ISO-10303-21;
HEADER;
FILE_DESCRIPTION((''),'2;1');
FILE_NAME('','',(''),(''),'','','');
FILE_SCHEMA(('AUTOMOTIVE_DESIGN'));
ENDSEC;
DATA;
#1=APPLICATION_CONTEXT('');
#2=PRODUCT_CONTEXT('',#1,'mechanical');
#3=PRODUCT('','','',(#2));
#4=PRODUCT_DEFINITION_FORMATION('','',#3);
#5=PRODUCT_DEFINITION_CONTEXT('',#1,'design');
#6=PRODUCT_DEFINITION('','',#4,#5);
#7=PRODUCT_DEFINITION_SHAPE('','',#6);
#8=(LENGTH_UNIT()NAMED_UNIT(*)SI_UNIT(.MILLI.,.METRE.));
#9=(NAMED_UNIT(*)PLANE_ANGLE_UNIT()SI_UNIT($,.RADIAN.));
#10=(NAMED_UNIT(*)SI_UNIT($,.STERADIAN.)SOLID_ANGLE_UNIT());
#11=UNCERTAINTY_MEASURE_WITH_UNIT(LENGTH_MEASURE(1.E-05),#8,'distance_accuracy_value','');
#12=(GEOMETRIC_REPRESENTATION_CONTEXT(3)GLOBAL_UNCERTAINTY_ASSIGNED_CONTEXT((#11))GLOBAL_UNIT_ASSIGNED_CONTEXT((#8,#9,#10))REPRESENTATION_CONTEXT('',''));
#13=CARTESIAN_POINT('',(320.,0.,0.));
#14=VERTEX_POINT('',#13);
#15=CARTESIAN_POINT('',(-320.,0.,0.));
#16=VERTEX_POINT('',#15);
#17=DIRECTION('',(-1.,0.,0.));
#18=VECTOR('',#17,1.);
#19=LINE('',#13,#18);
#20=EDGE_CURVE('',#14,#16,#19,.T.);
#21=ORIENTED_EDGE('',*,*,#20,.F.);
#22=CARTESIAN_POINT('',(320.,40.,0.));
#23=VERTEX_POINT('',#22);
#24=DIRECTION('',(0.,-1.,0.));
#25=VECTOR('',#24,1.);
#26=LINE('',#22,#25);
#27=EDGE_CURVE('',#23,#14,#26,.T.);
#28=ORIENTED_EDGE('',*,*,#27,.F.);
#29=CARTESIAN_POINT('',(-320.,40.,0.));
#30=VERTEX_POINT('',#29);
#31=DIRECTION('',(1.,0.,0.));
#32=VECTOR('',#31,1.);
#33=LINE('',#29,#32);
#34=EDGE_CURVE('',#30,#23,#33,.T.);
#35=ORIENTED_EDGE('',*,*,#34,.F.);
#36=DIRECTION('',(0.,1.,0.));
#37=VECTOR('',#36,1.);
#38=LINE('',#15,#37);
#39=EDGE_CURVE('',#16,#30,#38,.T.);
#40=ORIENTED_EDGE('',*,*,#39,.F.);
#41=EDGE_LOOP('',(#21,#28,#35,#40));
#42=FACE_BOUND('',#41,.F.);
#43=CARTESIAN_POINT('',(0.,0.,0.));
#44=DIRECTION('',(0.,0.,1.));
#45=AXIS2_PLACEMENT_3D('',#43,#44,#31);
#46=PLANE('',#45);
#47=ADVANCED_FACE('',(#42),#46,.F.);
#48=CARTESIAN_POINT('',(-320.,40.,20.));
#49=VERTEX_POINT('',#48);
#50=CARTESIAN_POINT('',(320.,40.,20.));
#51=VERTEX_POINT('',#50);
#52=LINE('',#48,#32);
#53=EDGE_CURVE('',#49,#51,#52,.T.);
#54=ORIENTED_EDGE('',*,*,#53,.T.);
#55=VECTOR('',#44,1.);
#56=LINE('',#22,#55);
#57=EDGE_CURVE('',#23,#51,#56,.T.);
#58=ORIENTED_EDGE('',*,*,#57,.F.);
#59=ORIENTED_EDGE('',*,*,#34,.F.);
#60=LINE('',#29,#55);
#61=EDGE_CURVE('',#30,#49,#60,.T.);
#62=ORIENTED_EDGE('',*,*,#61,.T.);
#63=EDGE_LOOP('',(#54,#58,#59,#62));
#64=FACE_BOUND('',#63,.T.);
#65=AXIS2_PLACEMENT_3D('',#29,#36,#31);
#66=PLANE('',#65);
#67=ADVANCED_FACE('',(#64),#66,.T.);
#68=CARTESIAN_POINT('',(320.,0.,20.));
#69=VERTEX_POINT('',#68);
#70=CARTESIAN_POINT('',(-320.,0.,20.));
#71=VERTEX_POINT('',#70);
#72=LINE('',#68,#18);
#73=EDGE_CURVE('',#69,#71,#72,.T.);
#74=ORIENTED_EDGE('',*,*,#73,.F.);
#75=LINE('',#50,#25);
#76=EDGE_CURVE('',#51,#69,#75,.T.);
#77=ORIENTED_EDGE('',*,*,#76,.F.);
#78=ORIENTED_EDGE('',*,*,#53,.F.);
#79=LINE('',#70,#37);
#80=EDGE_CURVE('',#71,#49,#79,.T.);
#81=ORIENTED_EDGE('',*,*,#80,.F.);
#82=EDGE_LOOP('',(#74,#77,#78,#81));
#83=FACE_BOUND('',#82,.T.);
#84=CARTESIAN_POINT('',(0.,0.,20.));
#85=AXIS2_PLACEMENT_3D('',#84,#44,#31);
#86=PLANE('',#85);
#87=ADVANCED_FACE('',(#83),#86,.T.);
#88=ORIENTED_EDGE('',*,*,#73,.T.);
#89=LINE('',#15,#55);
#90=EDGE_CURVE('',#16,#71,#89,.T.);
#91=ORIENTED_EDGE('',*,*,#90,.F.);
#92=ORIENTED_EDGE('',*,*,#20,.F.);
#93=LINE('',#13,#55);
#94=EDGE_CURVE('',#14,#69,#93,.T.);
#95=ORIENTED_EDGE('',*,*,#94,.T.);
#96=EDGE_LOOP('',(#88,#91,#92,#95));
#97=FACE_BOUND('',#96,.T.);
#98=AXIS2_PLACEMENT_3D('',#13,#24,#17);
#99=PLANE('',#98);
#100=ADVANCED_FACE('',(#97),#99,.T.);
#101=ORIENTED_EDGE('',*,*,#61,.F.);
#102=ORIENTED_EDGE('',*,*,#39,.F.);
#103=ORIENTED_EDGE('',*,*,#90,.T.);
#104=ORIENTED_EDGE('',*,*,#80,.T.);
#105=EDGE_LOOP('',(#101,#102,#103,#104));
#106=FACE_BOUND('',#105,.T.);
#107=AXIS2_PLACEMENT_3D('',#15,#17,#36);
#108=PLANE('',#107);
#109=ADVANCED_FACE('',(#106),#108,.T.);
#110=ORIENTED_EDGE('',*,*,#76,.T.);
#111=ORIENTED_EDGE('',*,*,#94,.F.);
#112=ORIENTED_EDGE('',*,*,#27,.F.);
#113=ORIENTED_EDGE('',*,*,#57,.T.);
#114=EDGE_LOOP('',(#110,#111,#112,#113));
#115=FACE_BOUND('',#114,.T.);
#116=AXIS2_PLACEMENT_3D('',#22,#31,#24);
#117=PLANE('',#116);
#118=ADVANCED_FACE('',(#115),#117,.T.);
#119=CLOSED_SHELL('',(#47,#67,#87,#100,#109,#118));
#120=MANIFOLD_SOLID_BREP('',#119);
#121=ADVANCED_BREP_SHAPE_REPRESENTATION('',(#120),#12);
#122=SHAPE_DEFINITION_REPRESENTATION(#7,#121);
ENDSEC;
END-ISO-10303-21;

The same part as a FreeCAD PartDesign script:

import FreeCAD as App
import Part
import Sketcher

doc = App.newDocument("Part")
params = doc.addObject("Spreadsheet::Sheet", "Params")
for row, (alias, value) in enumerate([
    ("sketch1_width", "640 mm"),
    ("sketch1_height", "40 mm"),
    ("pad1_length", "20 mm"),
], start=1):
    params.set(f"A{row}", alias)
    params.set(f"B{row}", "=" + value)
    params.setAlias(f"B{row}", alias)

body = doc.addObject("PartDesign::Body", "Body")

# Sketch on XY plane
sketch1 = body.newObject("Sketcher::SketchObject", "Sketch")
sketch1.AttachmentSupport = (doc.getObject("XY_Plane"), [""])
sketch1.MapMode = "FlatFace"
sketch1.addGeometry([
    Part.LineSegment(App.Vector(320, 40, 0), App.Vector(-320, 40, 0)),
    Part.LineSegment(App.Vector(-320, 40, 0), App.Vector(-320, 0, 0)),
    Part.LineSegment(App.Vector(-320, 0, 0), App.Vector(320, 0, 0)),
    Part.LineSegment(App.Vector(320, 0, 0), App.Vector(320, 40, 0)),
], False)
sketch1.addConstraint([
    Sketcher.Constraint("Coincident", 0, 2, 1, 1),
    Sketcher.Constraint("Coincident", 1, 2, 2, 1),
    Sketcher.Constraint("Coincident", 2, 2, 3, 1),
    Sketcher.Constraint("Coincident", 3, 2, 0, 1),
    Sketcher.Constraint("Horizontal", 0),
    Sketcher.Constraint("Vertical", 1),
    Sketcher.Constraint("Horizontal", 2),
    Sketcher.Constraint("Vertical", 3),
    Sketcher.Constraint("Symmetric", 1, 2, 2, 2, -1, 1),
    Sketcher.Constraint("DistanceX", 0, 2, 0, 1, 640.0),
    Sketcher.Constraint("DistanceY", 1, 2, 1, 1, 40.0),
])
sketch1.setExpression("Constraints[9]", "Params.sketch1_width")
sketch1.setExpression("Constraints[10]", "Params.sketch1_height")
pad1 = body.newObject("PartDesign::Pad", "Pad")
pad1.Profile = sketch1
pad1.setExpression("Length", "Params.pad1_length")

doc.recompute()
